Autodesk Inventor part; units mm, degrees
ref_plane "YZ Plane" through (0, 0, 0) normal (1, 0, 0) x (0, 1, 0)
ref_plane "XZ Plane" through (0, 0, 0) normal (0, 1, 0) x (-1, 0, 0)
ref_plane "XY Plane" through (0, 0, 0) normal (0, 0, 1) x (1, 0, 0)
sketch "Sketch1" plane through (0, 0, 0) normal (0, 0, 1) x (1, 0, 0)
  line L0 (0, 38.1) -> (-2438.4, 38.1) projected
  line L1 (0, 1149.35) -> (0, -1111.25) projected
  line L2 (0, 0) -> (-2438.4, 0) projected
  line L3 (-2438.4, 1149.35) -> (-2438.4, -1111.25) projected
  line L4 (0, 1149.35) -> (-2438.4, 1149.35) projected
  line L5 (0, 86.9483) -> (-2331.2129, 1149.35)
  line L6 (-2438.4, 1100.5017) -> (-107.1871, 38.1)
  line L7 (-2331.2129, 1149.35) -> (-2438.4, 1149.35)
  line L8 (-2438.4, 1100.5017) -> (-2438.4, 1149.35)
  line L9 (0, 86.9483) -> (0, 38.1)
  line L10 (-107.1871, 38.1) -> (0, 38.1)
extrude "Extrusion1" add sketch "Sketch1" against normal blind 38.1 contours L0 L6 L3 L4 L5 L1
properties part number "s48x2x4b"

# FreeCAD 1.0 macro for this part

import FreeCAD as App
import Part
import Sketcher
Q = App.Units.Quantity


def add_polygon(sketch, points):
    """Adds a closed chain of lines whose ends are joined by coincident constraints."""
    first, n = sketch.GeometryCount, len(points)
    for a, b in zip(points, points[1:] + points[:1]):
        sketch.addGeometry(Part.LineSegment(App.Vector(*a, 0), App.Vector(*b, 0)), False)
    for i in range(n):
        sketch.addConstraint(Sketcher.Constraint("Coincident", first + i, 2, first + (i + 1) % n, 1))

doc = App.newDocument("Part")
params = doc.addObject("Spreadsheet::Sheet", "Params")
for row, (alias, value) in enumerate([
    ("pad1_length", "1.5 in"),
], start=1):
    params.set(f"A{row}", alias)
    params.set(f"B{row}", "=" + value)
    params.setAlias(f"B{row}", alias)

body = doc.addObject("PartDesign::Body", "Body")

# Sketch on XY plane
sketch1 = body.newObject("Sketcher::SketchObject", "Sketch")
sketch1.AttachmentSupport = (doc.getObject("XY_Plane"), [""])
sketch1.MapMode = "FlatFace"
add_polygon(sketch1, [(-107, 38), (0, 38), (0, 87), (-2331, 1149), (-2438, 1149), (-2438, 1101)])  # lines 0-5
sketch1.addConstraint(Sketcher.Constraint("Horizontal", 0))
sketch1.addConstraint(Sketcher.Constraint("Vertical", 1))
sketch1.addConstraint(Sketcher.Constraint("Horizontal", 3))
sketch1.addConstraint(Sketcher.Constraint("Vertical", 4))
sketch1.addConstraint(Sketcher.Constraint("PointOnObject", 0, 2, -2))
sketch1.addConstraint(Sketcher.Constraint("Parallel", 2, 5))
sketch1.addConstraint(Sketcher.Constraint("Equal", 0, 3))
sketch1.addConstraint(Sketcher.Constraint("DistanceX", 3, 2, -1, 1, Q("96 in")))
sketch1.addConstraint(Sketcher.Constraint("DistanceY", -1, 1, 0, 2, Q("1.5 in")))
sketch1.addConstraint(Sketcher.Constraint("Angle", 2, Q("155.4999 deg")))
sketch1.addConstraint(Sketcher.Constraint("DistanceY", -1, 1, 2, 2, Q("45.25 in")))
sketch1.addConstraint(Sketcher.Constraint("DistanceX", 0, 1, 0, 2, 107.187))
pad1 = body.newObject("PartDesign::Pad", "Pad")
pad1.Profile = sketch1
pad1.setExpression("Length", "Params.pad1_length")
pad1.Reversed = True

doc.recompute()
